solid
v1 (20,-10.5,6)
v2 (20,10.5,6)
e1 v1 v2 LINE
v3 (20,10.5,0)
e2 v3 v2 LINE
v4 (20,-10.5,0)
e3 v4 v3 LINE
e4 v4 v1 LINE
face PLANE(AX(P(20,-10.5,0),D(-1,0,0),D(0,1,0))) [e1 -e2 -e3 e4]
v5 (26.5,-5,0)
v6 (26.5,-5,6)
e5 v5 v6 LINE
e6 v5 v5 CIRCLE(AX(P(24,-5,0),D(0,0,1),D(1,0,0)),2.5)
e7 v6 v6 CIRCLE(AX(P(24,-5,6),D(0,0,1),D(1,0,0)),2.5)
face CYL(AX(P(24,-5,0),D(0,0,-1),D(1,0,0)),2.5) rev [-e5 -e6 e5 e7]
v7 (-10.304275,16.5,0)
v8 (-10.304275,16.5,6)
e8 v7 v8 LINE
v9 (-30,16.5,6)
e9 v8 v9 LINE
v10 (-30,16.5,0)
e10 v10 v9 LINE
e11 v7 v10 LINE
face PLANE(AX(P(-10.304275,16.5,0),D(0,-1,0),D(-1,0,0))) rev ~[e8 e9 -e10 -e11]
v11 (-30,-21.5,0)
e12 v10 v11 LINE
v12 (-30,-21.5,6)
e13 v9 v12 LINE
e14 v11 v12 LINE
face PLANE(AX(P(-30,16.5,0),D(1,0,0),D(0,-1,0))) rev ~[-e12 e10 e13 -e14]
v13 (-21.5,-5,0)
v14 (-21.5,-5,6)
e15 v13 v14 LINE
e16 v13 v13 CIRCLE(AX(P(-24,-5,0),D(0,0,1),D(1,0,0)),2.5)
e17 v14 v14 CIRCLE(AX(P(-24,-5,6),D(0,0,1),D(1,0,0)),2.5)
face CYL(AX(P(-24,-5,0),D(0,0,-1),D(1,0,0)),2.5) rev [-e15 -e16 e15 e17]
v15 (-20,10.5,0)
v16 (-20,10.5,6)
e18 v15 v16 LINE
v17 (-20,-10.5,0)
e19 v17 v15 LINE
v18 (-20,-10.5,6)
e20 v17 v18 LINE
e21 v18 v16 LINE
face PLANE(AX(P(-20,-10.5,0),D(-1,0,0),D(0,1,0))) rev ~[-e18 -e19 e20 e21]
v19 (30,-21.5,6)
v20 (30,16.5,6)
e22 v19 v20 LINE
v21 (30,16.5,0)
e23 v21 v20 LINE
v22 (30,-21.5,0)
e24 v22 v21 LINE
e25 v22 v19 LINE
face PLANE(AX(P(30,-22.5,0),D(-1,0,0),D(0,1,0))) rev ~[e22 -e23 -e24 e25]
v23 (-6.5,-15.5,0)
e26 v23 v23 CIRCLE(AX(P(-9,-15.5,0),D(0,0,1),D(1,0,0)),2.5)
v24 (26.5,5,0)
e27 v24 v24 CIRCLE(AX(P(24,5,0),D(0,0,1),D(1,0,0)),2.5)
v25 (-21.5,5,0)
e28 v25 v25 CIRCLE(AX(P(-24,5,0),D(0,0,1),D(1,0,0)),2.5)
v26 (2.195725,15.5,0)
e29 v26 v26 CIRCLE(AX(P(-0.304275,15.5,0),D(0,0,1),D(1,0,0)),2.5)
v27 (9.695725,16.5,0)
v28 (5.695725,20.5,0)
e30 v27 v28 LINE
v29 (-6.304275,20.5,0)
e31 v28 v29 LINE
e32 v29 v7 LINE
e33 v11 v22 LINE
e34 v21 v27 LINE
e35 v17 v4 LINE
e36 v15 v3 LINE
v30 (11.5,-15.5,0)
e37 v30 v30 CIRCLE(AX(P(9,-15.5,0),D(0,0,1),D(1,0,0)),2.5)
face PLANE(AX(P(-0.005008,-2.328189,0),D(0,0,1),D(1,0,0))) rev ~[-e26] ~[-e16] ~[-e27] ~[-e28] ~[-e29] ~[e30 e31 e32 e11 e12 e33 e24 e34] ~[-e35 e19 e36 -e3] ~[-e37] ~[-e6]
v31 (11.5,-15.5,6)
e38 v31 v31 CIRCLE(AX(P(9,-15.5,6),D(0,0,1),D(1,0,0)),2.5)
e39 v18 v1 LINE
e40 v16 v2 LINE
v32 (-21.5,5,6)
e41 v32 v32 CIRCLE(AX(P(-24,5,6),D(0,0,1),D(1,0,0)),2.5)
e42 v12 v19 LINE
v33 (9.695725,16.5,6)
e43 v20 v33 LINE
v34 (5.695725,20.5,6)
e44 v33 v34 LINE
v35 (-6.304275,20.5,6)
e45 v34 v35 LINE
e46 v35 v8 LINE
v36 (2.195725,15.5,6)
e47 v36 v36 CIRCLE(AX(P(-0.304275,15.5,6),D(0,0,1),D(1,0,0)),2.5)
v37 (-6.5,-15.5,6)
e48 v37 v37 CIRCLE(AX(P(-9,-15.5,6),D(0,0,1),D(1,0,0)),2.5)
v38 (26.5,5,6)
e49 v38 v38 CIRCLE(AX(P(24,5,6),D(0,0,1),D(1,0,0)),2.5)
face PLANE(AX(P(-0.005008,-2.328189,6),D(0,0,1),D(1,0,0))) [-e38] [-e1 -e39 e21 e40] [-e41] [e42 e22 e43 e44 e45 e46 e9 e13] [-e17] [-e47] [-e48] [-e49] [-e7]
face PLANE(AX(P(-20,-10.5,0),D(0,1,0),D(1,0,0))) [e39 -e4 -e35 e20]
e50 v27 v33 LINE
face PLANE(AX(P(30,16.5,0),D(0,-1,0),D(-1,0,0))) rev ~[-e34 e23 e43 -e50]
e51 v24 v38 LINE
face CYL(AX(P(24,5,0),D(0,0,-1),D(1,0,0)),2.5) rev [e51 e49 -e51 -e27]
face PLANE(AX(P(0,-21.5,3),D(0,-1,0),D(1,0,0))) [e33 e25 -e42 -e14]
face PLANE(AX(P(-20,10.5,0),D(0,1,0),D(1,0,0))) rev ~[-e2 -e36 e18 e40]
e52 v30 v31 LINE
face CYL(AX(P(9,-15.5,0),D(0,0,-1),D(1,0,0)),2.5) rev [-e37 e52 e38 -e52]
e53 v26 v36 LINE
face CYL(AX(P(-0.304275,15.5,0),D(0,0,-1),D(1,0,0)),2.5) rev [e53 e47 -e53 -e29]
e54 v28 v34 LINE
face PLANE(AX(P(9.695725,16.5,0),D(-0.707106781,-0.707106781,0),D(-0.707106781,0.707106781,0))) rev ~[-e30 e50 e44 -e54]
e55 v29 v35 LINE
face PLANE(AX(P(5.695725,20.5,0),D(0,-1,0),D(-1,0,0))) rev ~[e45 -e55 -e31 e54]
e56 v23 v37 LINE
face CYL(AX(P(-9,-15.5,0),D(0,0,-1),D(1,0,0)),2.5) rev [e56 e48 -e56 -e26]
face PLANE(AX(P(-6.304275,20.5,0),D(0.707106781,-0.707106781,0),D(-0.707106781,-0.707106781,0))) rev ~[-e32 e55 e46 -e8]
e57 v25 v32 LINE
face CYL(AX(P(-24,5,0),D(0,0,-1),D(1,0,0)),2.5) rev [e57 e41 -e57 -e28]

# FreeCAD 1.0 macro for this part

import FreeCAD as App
import Part
import Sketcher
from FreeCAD import Vector

doc = App.newDocument("Part")
body = doc.addObject("PartDesign::Body", "Body")

# Sketch on XY plane
sketch1 = doc.addObject("Sketcher::SketchObject", "Sketch")
body.addObject(sketch1)
sketch1.AttachmentSupport = (doc.XY_Plane, [""])
sketch1.MapMode = "FlatFace"
sketch1.addGeometry([
    Part.LineSegment(Vector(30, 16.5, 0), Vector(9.695725, 16.5, 0)),  # 0
    Part.LineSegment(Vector(9.695725, 16.5, 0), Vector(5.695725, 20.5, 0)),  # 1
    Part.LineSegment(Vector(5.695725, 20.5, 0), Vector(-6.304275, 20.5, 0)),  # 2
    Part.LineSegment(Vector(-6.304275, 20.5, 0), Vector(-10.304275, 16.5, 0)),  # 3
    Part.LineSegment(Vector(-10.304275, 16.5, 0), Vector(-30, 16.5, 0)),  # 4
    Part.LineSegment(Vector(-30, 16.5, 0), Vector(-30, -22.5, 0)),  # 5
    Part.LineSegment(Vector(-30, -22.5, 0), Vector(30, -22.5, 0)),  # 6
    Part.LineSegment(Vector(30, -22.5, 0), Vector(30, 16.5, 0)),  # 7
    Part.Circle(Vector(-9, -15.5, 0), Vector(0, 0, 1), 2.5),  # 8
    Part.Circle(Vector(-24, -5, 0), Vector(0, 0, 1), 2.5),  # 9
    Part.Circle(Vector(9, -15.5, 0), Vector(0, 0, 1), 2.5),  # 10
    Part.Circle(Vector(24, -5, 0), Vector(0, 0, 1), 2.5),  # 11
    Part.Circle(Vector(-24, 5, 0), Vector(0, 0, 1), 2.5),  # 12
    Part.Circle(Vector(-0.304275, 15.5, 0), Vector(0, 0, 1), 2.5),  # 13
    Part.LineSegment(Vector(20, -10.5, 0), Vector(-20, -10.5, 0)),  # 14
    Part.LineSegment(Vector(-20, -10.5, 0), Vector(-20, 10.5, 0)),  # 15
    Part.LineSegment(Vector(-20, 10.5, 0), Vector(20, 10.5, 0)),  # 16
    Part.LineSegment(Vector(20, 10.5, 0), Vector(20, -10.5, 0)),  # 17
    Part.Circle(Vector(24, 5, 0), Vector(0, 0, 1), 2.5),  # 18
], False)
sketch1.addConstraint([
    Sketcher.Constraint("Coincident", 0, 2, 1, 1),
    Sketcher.Constraint("Coincident", 1, 2, 2, 1),
    Sketcher.Constraint("Coincident", 2, 2, 3, 1),
    Sketcher.Constraint("Coincident", 3, 2, 4, 1),
    Sketcher.Constraint("Coincident", 4, 2, 5, 1),
    Sketcher.Constraint("Coincident", 5, 2, 6, 1),
    Sketcher.Constraint("Coincident", 6, 2, 7, 1),
    Sketcher.Constraint("Coincident", 7, 2, 0, 1),
    Sketcher.Constraint("Coincident", 14, 2, 15, 1),
    Sketcher.Constraint("Coincident", 15, 2, 16, 1),
    Sketcher.Constraint("Coincident", 16, 2, 17, 1),
    Sketcher.Constraint("Coincident", 17, 2, 14, 1),
    Sketcher.Constraint("Horizontal", 0),
    Sketcher.Constraint("Horizontal", 2),
    Sketcher.Constraint("Horizontal", 4),
    Sketcher.Constraint("Vertical", 5),
    Sketcher.Constraint("Horizontal", 6),
    Sketcher.Constraint("Vertical", 7),
    Sketcher.Constraint("Horizontal", 14),
    Sketcher.Constraint("Vertical", 15),
    Sketcher.Constraint("Horizontal", 16),
    Sketcher.Constraint("Vertical", 17),
    Sketcher.Constraint("Equal", 8, 9),
    Sketcher.Constraint("Equal", 9, 10),
    Sketcher.Constraint("Equal", 10, 11),
    Sketcher.Constraint("Equal", 11, 12),
    Sketcher.Constraint("Equal", 12, 13),
    Sketcher.Constraint("Equal", 13, 18),
    Sketcher.Constraint("Symmetric", 11, 3, 12, 3, -1, 1),
    Sketcher.Constraint("Symmetric", 9, 3, 18, 3, -1, 1),
    Sketcher.Constraint("Symmetric", 14, 2, 16, 2, -1, 1),
    Sketcher.Constraint("Symmetric", 8, 3, 10, 3, -2),
    Sketcher.Constraint("Symmetric", 9, 3, 11, 3, -2),
    Sketcher.Constraint("Symmetric", 4, 2, 7, 2, -2),
    Sketcher.Constraint("Perpendicular", 1, 3),
    Sketcher.Constraint("Equal", 1, 3),
    Sketcher.Constraint("Diameter", 8, 5.0),
    Sketcher.Constraint("DistanceX", 2, 2, 2, 1, 12.0),
    Sketcher.Constraint("DistanceX", 6, 1, 6, 2, 60.0),
    Sketcher.Constraint("DistanceX", 14, 2, 14, 1, 40.0),
    Sketcher.Constraint("DistanceY", 5, 2, 5, 1, 39.0),
    Sketcher.Constraint("DistanceY", 15, 1, 15, 2, 21.0),
    Sketcher.Constraint("DistanceX", 8, 3, -1, 1, 9.0),
    Sketcher.Constraint("DistanceX", 9, 3, -1, 1, 24.0),
    Sketcher.Constraint("DistanceY", 9, 3, -1, 1, 5.0),
    Sketcher.Constraint("DistanceY", 8, 3, 13, 3, 31.0),
    Sketcher.Constraint("DistanceX", 13, 3, 0, 2, 10.0),
    Sketcher.Constraint("DistanceY", 13, 3, 0, 2, 1.0),
    Sketcher.Constraint("DistanceX", 1, 2, 0, 2, 4.0),
    Sketcher.Constraint("DistanceY", 8, 3, 14, 2, 5.0),
    Sketcher.Constraint("DistanceX", 0, 2, 0, 1, 20.304275),
])
pad1 = doc.addObject("PartDesign::Pad", "Pad")
body.addObject(pad1)
pad1.Profile = sketch1
pad1.Length = 6

# Sketch on XZ plane
sketch2 = doc.addObject("Sketcher::SketchObject", "Sketch001")
body.addObject(sketch2)
sketch2.AttachmentSupport = (doc.XZ_Plane, [""])
sketch2.MapMode = "FlatFace"
sketch2.AttachmentOffset = App.Placement(Vector(0, 0, 22.5), App.Rotation())
sketch2.addGeometry([
    Part.LineSegment(Vector(-30, 6, 0), Vector(-30, 0, 0)),
    Part.LineSegment(Vector(-30, 0, 0), Vector(30, 0, 0)),
    Part.LineSegment(Vector(30, 0, 0), Vector(30, 6, 0)),
    Part.LineSegment(Vector(30, 6, 0), Vector(-30, 6, 0)),
], False)
sketch2.addConstraint([
    Sketcher.Constraint("Coincident", 0, 2, 1, 1),
    Sketcher.Constraint("Coincident", 1, 2, 2, 1),
    Sketcher.Constraint("Coincident", 2, 2, 3, 1),
    Sketcher.Constraint("Coincident", 3, 2, 0, 1),
    Sketcher.Constraint("Vertical", 0),
    Sketcher.Constraint("Horizontal", 1),
    Sketcher.Constraint("Vertical", 2),
    Sketcher.Constraint("Horizontal", 3),
    Sketcher.Constraint("Symmetric", 0, 2, 1, 2, -1, 1),
    Sketcher.Constraint("DistanceX", 1, 1, 1, 2, 60.0),
    Sketcher.Constraint("DistanceY", 0, 2, 0, 1, 6.0),
])
pocket1 = doc.addObject("PartDesign::Pocket", "Pocket")
body.addObject(pocket1)
pocket1.Profile = sketch2
pocket1.Length = 1

doc.recompute()
